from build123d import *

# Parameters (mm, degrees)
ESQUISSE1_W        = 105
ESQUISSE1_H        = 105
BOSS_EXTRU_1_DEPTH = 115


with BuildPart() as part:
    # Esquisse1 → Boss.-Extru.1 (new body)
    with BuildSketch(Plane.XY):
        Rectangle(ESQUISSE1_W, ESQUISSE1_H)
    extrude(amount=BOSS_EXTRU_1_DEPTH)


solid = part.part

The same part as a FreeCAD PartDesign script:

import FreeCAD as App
import Part
import Sketcher

V = App.Vector

doc = App.newDocument("Part")
body = doc.addObject("PartDesign::Body", "Body")

sketch1 = body.newObject("Sketcher::SketchObject", "Sketch")
sketch1.AttachmentSupport = (doc.getObject("XY_Plane"), [""])
sketch1.MapMode = "FlatFace"
sketch1.addGeometry([
    Part.LineSegment(V(-52, 52, 0), V(-52, -52, 0)),
    Part.LineSegment(V(-52, -52, 0), V(52, -52, 0)),
    Part.LineSegment(V(52, -52, 0), V(52, 52, 0)),
    Part.LineSegment(V(52, 52, 0), V(-52, 52, 0)),
], False)
sketch1.addConstraint([
    Sketcher.Constraint("Coincident", 0, 2, 1, 1),
    Sketcher.Constraint("Coincident", 1, 2, 2, 1),
    Sketcher.Constraint("Coincident", 2, 2, 3, 1),
    Sketcher.Constraint("Coincident", 3, 2, 0, 1),
    Sketcher.Constraint("Vertical", 0),
    Sketcher.Constraint("Horizontal", 1),
    Sketcher.Constraint("Vertical", 2),
    Sketcher.Constraint("Horizontal", 3),
    Sketcher.Constraint("Symmetric", 0, 2, 2, 2, -1, 1),
    Sketcher.Constraint("Equal", 3, 0),
    Sketcher.Constraint("DistanceX", 1, 1, 1, 2, 105.0),
])
pad1 = body.newObject("PartDesign::Pad", "Pad")
pad1.Profile = sketch1
pad1.Length = 115

doc.recompute()
